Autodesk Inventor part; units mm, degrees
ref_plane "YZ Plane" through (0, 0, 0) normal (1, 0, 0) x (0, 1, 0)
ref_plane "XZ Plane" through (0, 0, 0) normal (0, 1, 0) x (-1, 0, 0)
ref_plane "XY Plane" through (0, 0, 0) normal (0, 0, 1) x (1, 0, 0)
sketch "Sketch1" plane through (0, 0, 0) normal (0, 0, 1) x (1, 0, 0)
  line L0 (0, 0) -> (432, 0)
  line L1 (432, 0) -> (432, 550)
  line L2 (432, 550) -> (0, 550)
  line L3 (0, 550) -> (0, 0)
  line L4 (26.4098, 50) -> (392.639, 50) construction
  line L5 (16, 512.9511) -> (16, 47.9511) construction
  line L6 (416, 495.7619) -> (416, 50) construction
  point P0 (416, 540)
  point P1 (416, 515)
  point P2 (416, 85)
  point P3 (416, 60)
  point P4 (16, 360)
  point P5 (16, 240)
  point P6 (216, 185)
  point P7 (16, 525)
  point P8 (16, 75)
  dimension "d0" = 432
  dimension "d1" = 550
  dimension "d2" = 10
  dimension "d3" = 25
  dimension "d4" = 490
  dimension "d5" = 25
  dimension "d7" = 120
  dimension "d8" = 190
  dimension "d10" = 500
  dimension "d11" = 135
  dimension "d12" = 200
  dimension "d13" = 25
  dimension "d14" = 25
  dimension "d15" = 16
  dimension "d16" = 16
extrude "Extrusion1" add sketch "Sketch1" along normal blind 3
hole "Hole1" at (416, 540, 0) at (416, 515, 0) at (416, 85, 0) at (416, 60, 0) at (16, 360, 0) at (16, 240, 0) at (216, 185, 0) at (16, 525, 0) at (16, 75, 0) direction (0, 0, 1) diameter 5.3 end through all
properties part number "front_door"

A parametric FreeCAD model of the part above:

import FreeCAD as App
import Part
import Sketcher
from FreeCAD import Vector
Q = App.Units.Quantity


def add_polygon(sketch, points):
    """Adds a closed chain of lines whose ends are joined by coincident constraints."""
    first, n = sketch.GeometryCount, len(points)
    for a, b in zip(points, points[1:] + points[:1]):
        sketch.addGeometry(Part.LineSegment(App.Vector(*a, 0), App.Vector(*b, 0)), False)
    for i in range(n):
        sketch.addConstraint(Sketcher.Constraint("Coincident", first + i, 2, first + (i + 1) % n, 1))

doc = App.newDocument("Part")
body = doc.addObject("PartDesign::Body", "Body")

# Sketch on XY plane
sketch1 = body.newObject("Sketcher::SketchObject", "Sketch")
sketch1.AttachmentSupport = (doc.getObject("XY_Plane"), [""])
sketch1.MapMode = "FlatFace"
add_polygon(sketch1, [(0, 550), (0, 0), (432, 0), (432, 550)])  # lines 0-3
sketch1.addConstraint(Sketcher.Constraint("Vertical", 0))
sketch1.addConstraint(Sketcher.Constraint("Horizontal", 1))
sketch1.addConstraint(Sketcher.Constraint("Vertical", 2))
sketch1.addConstraint(Sketcher.Constraint("Horizontal", 3))
sketch1.addConstraint(Sketcher.Constraint("Coincident", 0, 2, -1, 1))
sketch1.addConstraint(Sketcher.Constraint("DistanceX", 1, 1, 1, 2, Q("432 mm")))
sketch1.addConstraint(Sketcher.Constraint("DistanceY", 0, 2, 0, 1, Q("550 mm")))
pad1 = body.newObject("PartDesign::Pad", "Pad")
pad1.Profile = sketch1
pad1.Length = 3

# Sketch on XY plane
sketch2 = body.newObject("Sketcher::SketchObject", "Sketch001")
sketch2.AttachmentSupport = (doc.getObject("XY_Plane"), [""])
sketch2.MapMode = "FlatFace"
sketch2.addGeometry(Part.Circle(Vector(416, 540, 0), Vector(0, 0, 1), 2.65), False)
sketch2.addGeometry(Part.Circle(Vector(416, 515, 0), Vector(0, 0, 1), 2.65), False)
sketch2.addGeometry(Part.Circle(Vector(416, 85, 0), Vector(0, 0, 1), 2.65), False)
sketch2.addGeometry(Part.Circle(Vector(416, 60, 0), Vector(0, 0, 1), 2.65), False)
sketch2.addGeometry(Part.Circle(Vector(16, 360, 0), Vector(0, 0, 1), 2.65), False)
sketch2.addGeometry(Part.Circle(Vector(16, 240, 0), Vector(0, 0, 1), 2.65), False)
sketch2.addGeometry(Part.Circle(Vector(216, 185, 0), Vector(0, 0, 1), 2.65), False)
sketch2.addGeometry(Part.Circle(Vector(16, 525, 0), Vector(0, 0, 1), 2.65), False)
sketch2.addGeometry(Part.Circle(Vector(16, 75, 0), Vector(0, 0, 1), 2.65), False)
sketch2.addConstraint(Sketcher.Constraint("Equal", 0, 1))
sketch2.addConstraint(Sketcher.Constraint("Equal", 1, 2))
sketch2.addConstraint(Sketcher.Constraint("Equal", 2, 3))
sketch2.addConstraint(Sketcher.Constraint("Equal", 3, 4))
sketch2.addConstraint(Sketcher.Constraint("Equal", 4, 5))
sketch2.addConstraint(Sketcher.Constraint("Equal", 5, 6))
sketch2.addConstraint(Sketcher.Constraint("Equal", 6, 7))
sketch2.addConstraint(Sketcher.Constraint("Equal", 7, 8))
sketch2.addConstraint(Sketcher.Constraint("Vertical", 0, 3, 1, 3))
sketch2.addConstraint(Sketcher.Constraint("Vertical", 1, 3, 2, 3))
sketch2.addConstraint(Sketcher.Constraint("Vertical", 2, 3, 3, 3))
sketch2.addConstraint(Sketcher.Constraint("Vertical", 4, 3, 5, 3))
sketch2.addConstraint(Sketcher.Constraint("Vertical", 5, 3, 7, 3))
sketch2.addConstraint(Sketcher.Constraint("Vertical", 7, 3, 8, 3))
sketch2.addConstraint(Sketcher.Constraint("Diameter", 0, Q("5.3 mm")))
sketch2.addConstraint(Sketcher.Constraint("DistanceX", -1, 1, 0, 3, Q("416 mm")))
sketch2.addConstraint(Sketcher.Constraint("DistanceY", -1, 1, 0, 3, Q("540 mm")))
sketch2.addConstraint(Sketcher.Constraint("DistanceY", -1, 1, 1, 3, Q("515 mm")))
sketch2.addConstraint(Sketcher.Constraint("DistanceY", -1, 1, 2, 3, Q("85 mm")))
sketch2.addConstraint(Sketcher.Constraint("DistanceY", -1, 1, 3, 3, Q("60 mm")))
sketch2.addConstraint(Sketcher.Constraint("DistanceX", -1, 1, 4, 3, Q("16 mm")))
sketch2.addConstraint(Sketcher.Constraint("DistanceY", -1, 1, 4, 3, Q("360 mm")))
sketch2.addConstraint(Sketcher.Constraint("DistanceY", -1, 1, 5, 3, Q("240 mm")))
sketch2.addConstraint(Sketcher.Constraint("DistanceX", -1, 1, 6, 3, Q("216 mm")))
sketch2.addConstraint(Sketcher.Constraint("DistanceY", -1, 1, 6, 3, Q("185 mm")))
sketch2.addConstraint(Sketcher.Constraint("DistanceY", -1, 1, 7, 3, Q("525 mm")))
sketch2.addConstraint(Sketcher.Constraint("DistanceY", -1, 1, 8, 3, Q("75 mm")))
doc.recompute()
hole = body.newObject("PartDesign::Hole", "Hole")
hole.Profile = sketch2
hole.ThreadType = "None"
hole.Diameter = 5.3
hole.DepthType = "ThroughAll"
hole.Reversed = True

doc.recompute()
